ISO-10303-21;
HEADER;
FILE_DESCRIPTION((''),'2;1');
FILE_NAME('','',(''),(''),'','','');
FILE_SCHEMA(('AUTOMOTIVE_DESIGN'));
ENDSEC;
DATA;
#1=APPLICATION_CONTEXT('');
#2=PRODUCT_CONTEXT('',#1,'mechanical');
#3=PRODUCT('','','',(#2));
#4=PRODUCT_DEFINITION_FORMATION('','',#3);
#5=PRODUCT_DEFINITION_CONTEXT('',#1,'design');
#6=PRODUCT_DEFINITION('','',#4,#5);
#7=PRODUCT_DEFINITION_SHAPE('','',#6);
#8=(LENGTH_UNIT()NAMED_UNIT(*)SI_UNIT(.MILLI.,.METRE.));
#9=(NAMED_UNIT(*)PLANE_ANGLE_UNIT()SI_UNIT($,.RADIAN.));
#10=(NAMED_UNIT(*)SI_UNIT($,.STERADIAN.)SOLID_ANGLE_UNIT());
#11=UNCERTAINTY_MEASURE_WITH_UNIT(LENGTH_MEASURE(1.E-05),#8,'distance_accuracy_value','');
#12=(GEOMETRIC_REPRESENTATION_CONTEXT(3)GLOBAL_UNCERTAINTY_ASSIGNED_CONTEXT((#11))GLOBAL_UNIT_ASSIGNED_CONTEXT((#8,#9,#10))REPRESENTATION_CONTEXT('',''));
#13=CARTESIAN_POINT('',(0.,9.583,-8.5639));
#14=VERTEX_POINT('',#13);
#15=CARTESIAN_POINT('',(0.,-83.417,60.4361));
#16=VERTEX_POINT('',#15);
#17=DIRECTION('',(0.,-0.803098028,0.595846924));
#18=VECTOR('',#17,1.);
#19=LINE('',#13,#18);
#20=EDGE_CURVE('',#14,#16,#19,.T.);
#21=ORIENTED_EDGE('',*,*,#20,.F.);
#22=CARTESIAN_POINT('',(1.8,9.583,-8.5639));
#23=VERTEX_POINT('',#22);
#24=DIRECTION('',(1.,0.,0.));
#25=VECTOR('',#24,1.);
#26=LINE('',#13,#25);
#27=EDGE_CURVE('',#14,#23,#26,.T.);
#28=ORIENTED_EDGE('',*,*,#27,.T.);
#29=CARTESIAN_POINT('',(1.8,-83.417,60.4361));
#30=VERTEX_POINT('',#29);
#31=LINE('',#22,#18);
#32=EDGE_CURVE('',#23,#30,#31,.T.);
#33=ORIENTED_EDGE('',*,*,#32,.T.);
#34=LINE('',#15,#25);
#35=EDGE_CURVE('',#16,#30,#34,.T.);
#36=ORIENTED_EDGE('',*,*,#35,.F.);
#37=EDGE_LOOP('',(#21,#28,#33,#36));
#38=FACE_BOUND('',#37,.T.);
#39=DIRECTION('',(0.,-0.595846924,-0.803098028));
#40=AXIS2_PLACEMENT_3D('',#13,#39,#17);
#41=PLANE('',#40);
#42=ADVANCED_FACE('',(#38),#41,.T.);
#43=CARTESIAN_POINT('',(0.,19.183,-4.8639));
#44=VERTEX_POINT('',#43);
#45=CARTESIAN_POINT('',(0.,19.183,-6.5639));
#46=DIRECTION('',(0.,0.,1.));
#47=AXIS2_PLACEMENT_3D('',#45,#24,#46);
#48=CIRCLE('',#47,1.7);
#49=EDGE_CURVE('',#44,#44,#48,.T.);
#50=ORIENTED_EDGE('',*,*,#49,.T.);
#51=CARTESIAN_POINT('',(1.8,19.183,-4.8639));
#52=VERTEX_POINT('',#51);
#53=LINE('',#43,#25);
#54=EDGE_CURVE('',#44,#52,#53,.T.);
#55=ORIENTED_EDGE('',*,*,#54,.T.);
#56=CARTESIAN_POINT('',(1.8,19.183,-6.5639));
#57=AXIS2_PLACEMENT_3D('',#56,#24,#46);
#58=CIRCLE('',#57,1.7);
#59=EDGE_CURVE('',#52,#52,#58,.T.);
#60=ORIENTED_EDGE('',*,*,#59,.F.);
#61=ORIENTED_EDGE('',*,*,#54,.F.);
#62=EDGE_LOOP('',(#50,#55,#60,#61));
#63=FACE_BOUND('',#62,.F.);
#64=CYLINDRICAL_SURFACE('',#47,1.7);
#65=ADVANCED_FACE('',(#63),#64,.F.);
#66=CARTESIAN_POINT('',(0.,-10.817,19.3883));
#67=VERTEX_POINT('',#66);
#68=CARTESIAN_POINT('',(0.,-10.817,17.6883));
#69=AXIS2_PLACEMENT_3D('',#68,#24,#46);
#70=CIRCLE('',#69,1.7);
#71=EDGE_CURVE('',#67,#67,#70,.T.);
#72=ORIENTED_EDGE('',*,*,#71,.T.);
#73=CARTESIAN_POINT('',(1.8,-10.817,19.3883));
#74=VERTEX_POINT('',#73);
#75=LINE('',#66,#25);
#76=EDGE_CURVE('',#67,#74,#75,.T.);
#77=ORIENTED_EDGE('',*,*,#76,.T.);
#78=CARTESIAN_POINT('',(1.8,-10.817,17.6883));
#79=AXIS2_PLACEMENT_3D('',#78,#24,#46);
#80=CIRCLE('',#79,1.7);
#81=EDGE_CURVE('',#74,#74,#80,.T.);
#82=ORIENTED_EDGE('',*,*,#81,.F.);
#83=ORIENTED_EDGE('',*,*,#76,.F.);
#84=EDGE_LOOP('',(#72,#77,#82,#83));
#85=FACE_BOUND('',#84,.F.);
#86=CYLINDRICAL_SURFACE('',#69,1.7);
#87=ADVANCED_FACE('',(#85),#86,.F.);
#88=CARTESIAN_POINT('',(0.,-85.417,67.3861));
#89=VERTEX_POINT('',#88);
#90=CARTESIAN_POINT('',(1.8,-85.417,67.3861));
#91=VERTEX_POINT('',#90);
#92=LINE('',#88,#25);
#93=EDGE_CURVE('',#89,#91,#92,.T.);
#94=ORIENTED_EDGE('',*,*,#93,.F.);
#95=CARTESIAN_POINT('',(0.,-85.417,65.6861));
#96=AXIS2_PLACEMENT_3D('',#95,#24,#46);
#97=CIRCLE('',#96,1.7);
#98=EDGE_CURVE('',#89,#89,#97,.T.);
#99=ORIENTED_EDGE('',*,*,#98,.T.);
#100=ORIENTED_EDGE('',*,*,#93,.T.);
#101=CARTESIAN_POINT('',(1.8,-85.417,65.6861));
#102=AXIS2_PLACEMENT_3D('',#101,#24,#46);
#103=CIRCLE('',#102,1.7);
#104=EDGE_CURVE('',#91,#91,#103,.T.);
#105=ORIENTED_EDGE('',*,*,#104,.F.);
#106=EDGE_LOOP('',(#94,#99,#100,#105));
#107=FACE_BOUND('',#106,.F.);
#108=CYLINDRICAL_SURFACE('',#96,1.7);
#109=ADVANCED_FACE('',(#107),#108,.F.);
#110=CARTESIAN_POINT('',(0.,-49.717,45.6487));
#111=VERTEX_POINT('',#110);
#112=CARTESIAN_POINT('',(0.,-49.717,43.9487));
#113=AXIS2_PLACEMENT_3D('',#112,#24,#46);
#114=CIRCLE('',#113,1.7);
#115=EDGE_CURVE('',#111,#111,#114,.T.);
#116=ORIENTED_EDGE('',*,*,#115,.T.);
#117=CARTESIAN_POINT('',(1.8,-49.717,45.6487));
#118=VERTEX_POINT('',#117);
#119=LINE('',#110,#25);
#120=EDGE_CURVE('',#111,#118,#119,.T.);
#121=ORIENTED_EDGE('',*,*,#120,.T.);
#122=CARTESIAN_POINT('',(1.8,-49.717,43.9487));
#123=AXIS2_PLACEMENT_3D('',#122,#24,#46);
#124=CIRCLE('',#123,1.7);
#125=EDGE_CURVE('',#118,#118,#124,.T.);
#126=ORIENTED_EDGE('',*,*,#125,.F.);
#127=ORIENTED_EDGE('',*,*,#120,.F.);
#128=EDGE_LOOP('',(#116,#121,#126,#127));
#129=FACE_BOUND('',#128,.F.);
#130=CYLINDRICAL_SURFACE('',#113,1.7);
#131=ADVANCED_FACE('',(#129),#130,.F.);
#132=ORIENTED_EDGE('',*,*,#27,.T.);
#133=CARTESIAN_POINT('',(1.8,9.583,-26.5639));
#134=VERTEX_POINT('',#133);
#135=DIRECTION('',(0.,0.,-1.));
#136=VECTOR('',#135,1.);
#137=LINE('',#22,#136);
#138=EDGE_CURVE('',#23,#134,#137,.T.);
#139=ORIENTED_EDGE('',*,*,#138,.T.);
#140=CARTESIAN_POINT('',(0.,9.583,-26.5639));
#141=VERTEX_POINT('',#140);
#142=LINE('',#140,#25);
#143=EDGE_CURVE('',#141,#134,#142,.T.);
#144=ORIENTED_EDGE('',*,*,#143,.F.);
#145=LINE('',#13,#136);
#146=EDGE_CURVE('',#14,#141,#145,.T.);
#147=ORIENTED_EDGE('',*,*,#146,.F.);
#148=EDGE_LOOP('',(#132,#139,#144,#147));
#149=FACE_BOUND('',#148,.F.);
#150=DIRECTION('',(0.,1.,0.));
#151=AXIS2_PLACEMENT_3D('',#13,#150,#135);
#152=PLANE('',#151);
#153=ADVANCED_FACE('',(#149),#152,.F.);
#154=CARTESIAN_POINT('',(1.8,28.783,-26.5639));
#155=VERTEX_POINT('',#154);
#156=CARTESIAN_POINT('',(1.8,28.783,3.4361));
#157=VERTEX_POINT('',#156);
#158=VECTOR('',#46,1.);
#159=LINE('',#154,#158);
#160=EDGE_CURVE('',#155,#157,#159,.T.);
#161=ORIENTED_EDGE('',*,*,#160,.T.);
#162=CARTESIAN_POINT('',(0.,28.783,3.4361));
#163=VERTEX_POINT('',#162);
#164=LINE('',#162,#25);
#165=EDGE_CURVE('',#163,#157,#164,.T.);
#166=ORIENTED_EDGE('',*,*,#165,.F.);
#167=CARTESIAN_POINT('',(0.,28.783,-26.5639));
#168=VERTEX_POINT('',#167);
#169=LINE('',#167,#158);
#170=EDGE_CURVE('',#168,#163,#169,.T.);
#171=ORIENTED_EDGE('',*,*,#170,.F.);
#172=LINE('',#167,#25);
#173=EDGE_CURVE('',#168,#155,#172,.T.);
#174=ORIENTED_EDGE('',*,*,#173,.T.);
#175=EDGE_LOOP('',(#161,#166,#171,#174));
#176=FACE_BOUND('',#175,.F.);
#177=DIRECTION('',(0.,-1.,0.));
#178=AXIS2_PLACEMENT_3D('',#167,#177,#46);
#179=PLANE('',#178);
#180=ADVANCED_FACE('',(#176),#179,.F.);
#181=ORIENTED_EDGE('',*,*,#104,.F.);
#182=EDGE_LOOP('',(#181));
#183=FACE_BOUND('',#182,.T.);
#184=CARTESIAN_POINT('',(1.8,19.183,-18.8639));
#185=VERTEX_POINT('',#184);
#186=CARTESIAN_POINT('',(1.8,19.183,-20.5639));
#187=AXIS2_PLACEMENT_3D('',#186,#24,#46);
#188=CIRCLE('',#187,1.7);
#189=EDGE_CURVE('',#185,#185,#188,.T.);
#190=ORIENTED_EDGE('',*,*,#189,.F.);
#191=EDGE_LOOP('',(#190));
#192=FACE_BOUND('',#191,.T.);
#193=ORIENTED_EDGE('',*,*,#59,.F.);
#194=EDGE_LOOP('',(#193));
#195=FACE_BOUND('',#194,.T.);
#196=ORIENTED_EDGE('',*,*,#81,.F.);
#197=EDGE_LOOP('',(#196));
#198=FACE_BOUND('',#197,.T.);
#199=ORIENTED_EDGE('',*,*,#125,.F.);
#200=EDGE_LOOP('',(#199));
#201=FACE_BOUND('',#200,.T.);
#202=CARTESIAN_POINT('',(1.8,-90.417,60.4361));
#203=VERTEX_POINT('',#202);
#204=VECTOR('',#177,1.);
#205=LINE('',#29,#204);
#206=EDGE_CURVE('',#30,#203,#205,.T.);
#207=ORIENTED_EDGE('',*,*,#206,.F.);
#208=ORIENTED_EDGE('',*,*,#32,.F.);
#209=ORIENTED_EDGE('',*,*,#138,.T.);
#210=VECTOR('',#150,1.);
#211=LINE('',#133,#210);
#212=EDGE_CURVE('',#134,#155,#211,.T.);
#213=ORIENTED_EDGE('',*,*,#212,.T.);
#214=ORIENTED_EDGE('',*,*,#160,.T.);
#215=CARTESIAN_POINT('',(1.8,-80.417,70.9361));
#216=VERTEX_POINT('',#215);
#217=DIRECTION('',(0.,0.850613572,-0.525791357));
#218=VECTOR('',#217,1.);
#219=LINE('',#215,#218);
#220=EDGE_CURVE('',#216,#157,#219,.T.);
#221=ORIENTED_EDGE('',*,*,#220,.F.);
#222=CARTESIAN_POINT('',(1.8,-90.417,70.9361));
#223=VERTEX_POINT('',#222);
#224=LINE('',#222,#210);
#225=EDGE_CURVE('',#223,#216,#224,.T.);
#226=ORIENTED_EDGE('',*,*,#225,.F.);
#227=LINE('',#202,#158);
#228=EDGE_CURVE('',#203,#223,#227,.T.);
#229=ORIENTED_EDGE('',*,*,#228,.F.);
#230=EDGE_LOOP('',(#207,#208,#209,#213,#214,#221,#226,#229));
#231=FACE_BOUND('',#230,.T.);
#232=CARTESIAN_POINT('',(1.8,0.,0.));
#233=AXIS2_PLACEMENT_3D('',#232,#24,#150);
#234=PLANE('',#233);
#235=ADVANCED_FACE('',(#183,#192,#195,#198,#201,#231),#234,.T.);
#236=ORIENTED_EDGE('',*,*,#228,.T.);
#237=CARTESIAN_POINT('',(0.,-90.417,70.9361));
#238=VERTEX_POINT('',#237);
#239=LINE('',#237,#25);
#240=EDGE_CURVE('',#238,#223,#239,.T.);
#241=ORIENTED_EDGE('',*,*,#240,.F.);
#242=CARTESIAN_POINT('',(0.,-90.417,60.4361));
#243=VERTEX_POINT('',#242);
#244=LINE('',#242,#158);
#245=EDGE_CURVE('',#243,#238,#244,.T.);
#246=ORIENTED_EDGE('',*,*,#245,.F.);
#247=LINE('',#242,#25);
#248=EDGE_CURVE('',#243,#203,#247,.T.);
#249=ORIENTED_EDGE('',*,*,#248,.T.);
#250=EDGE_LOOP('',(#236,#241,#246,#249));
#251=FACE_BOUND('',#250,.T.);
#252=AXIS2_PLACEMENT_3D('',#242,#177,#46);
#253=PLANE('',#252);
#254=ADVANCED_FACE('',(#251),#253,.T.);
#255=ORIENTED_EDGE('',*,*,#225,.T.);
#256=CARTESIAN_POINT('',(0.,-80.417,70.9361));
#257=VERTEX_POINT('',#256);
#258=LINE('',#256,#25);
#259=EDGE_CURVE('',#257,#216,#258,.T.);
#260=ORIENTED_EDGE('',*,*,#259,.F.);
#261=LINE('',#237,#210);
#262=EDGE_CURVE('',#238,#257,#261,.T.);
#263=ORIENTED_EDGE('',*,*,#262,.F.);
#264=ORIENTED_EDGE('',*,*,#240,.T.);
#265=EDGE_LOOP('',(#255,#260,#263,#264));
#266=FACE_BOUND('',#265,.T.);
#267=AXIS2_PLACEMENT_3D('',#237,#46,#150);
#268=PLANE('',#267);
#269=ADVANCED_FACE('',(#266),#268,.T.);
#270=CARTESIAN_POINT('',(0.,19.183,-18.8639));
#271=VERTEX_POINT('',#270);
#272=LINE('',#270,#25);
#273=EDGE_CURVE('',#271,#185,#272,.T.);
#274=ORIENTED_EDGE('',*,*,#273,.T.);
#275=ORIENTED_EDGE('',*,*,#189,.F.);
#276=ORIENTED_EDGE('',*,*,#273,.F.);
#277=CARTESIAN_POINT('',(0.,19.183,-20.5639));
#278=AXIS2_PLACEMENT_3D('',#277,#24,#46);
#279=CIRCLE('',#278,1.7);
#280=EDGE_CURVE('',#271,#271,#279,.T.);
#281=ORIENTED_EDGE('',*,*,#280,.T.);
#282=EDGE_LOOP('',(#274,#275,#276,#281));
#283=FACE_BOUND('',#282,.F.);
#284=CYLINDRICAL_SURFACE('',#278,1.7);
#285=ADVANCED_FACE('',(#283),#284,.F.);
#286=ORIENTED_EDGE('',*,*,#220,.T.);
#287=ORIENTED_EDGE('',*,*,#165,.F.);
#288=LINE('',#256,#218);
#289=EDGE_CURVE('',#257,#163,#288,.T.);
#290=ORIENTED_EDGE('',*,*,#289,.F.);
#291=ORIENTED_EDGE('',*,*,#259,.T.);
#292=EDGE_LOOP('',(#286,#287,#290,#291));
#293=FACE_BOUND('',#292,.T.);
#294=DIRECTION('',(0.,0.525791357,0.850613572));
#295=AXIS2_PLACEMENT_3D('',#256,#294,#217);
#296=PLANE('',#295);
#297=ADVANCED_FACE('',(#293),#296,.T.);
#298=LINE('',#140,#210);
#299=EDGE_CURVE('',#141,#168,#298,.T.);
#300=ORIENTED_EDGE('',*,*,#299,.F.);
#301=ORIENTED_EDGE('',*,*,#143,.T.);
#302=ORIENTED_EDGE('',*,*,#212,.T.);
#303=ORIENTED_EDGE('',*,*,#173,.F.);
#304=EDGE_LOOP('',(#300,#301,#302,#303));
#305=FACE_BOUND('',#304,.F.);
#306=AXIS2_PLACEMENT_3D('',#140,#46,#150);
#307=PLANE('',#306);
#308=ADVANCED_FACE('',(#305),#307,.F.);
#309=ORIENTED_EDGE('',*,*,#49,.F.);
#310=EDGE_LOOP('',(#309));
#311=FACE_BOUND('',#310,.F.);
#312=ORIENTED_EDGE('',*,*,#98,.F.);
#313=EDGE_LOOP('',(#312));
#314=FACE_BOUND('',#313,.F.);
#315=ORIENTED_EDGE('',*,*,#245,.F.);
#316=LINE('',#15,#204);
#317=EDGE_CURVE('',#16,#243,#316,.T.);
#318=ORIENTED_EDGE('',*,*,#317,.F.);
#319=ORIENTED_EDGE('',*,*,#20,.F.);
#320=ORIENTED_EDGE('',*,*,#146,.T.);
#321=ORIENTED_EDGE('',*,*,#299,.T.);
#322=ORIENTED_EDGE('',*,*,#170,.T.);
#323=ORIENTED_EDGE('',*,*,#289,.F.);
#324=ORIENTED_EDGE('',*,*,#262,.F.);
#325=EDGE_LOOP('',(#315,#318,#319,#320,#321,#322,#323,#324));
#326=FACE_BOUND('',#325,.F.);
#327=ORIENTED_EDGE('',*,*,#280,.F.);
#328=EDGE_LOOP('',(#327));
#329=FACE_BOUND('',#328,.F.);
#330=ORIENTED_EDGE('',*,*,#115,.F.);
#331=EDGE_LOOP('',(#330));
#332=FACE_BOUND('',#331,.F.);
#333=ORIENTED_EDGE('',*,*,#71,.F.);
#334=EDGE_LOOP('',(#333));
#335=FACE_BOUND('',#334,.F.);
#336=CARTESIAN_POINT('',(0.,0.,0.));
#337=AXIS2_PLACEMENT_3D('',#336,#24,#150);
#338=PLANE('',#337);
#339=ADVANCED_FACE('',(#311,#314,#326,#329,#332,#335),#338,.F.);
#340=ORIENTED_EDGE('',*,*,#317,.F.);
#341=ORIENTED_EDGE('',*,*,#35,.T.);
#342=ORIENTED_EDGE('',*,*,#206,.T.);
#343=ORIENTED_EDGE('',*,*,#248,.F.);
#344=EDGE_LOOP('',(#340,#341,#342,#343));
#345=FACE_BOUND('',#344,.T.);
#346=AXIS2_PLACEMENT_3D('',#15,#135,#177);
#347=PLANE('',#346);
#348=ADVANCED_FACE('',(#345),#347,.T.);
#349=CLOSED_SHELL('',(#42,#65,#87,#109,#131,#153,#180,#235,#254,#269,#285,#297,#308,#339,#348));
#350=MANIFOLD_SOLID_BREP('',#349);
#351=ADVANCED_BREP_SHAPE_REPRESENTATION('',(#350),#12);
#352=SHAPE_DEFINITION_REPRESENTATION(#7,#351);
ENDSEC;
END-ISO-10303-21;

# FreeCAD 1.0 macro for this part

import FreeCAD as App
import Part
import Sketcher

doc = App.newDocument("Part")
body = doc.addObject("PartDesign::Body", "Body")

# Sketch on YZ plane
sketch1 = body.newObject("Sketcher::SketchObject", "Sketch")
sketch1.AttachmentSupport = (doc.getObject("YZ_Plane"), [""])
sketch1.MapMode = "FlatFace"
sketch1.addGeometry([
    Part.LineSegment(App.Vector(-83.417, 60.4361, 0), App.Vector(9.583, -8.5639, 0)),  # 0
    Part.LineSegment(App.Vector(9.583, -8.5639, 0), App.Vector(9.583, -26.5639, 0)),  # 1
    Part.LineSegment(App.Vector(9.583, -26.5639, 0), App.Vector(28.783, -26.5639, 0)),  # 2
    Part.LineSegment(App.Vector(28.783, -26.5639, 0), App.Vector(28.783, 3.4361, 0)),  # 3
    Part.LineSegment(App.Vector(28.783, 3.4361, 0), App.Vector(-80.417, 70.9361, 0)),  # 4
    Part.LineSegment(App.Vector(-80.417, 70.9361, 0), App.Vector(-90.417, 70.9361, 0)),  # 5
    Part.LineSegment(App.Vector(-90.417, 70.9361, 0), App.Vector(-90.417, 60.4361, 0)),  # 6
    Part.LineSegment(App.Vector(-90.417, 60.4361, 0), App.Vector(-83.417, 60.4361, 0)),  # 7
], False)
sketch1.addConstraint([
    Sketcher.Constraint("Coincident", 0, 2, 1, 1),
    Sketcher.Constraint("Coincident", 1, 2, 2, 1),
    Sketcher.Constraint("Coincident", 2, 2, 3, 1),
    Sketcher.Constraint("Coincident", 3, 2, 4, 1),
    Sketcher.Constraint("Coincident", 4, 2, 5, 1),
    Sketcher.Constraint("Coincident", 5, 2, 6, 1),
    Sketcher.Constraint("Coincident", 6, 2, 7, 1),
    Sketcher.Constraint("Coincident", 7, 2, 0, 1),
    Sketcher.Constraint("Vertical", 1),
    Sketcher.Constraint("Horizontal", 2),
    Sketcher.Constraint("Vertical", 3),
    Sketcher.Constraint("Horizontal", 5),
    Sketcher.Constraint("Vertical", 6),
    Sketcher.Constraint("Horizontal", 7),
    Sketcher.Constraint("DistanceX", 5, 2, 5, 1, 10.0),
    Sketcher.Constraint("DistanceX", 7, 1, 7, 2, 7.0),
    Sketcher.Constraint("DistanceY", 1, 2, 1, 1, 18.0),
    Sketcher.Constraint("DistanceY", 3, 1, 3, 2, 30.0),
    Sketcher.Constraint("DistanceX", 2, 1, 2, 2, 19.2),
    Sketcher.Constraint("DistanceY", 6, 2, 6, 1, 10.5),
    Sketcher.Constraint("DistanceY", 0, 2, 6, 2, 69.0),
    Sketcher.Constraint("DistanceX", 7, 2, 0, 2, 93.0),
    Sketcher.Constraint("DistanceX", -1, 1, 0, 2, 9.583),
    Sketcher.Constraint("DistanceY", 0, 2, -1, 1, 8.564),
])
pad1 = body.newObject("PartDesign::Pad", "Pad")
pad1.Profile = sketch1
pad1.Length = 1.8

# Sketch on YZ plane
sketch2 = body.newObject("Sketcher::SketchObject", "Sketch001")
sketch2.AttachmentSupport = (doc.getObject("YZ_Plane"), [""])
sketch2.MapMode = "FlatFace"
sketch2.addGeometry([
    Part.Circle(App.Vector(19.183, -20.5639, 0), App.Vector(0, 0, 1), 1.7),  # 0
    Part.Circle(App.Vector(19.183, -6.5639, 0), App.Vector(0, 0, 1), 1.7),  # 1
    Part.Circle(App.Vector(-85.417, 65.6861, 0), App.Vector(0, 0, 1), 1.7),  # 2
    Part.Circle(App.Vector(-49.717, 43.9487, 0), App.Vector(0, 0, 1), 1.7),  # 3
    Part.Circle(App.Vector(-10.817, 17.6883, 0), App.Vector(0, 0, 1), 1.7),  # 4
], False)
sketch2.addConstraint([
    Sketcher.Constraint("Equal", 0, 1),
    Sketcher.Constraint("Equal", 1, 2),
    Sketcher.Constraint("Equal", 2, 3),
    Sketcher.Constraint("Equal", 3, 4),
    Sketcher.Constraint("Vertical", 0, 3, 1, 3),
    Sketcher.Constraint("Diameter", 0, 3.4),
    Sketcher.Constraint("DistanceY", 0, 3, 1, 3, 14.0),
    Sketcher.Constraint("DistanceX", 4, 3, 1, 3, 30.0),
    Sketcher.Constraint("DistanceX", 2, 3, 1, 3, 104.6),
    Sketcher.Constraint("DistanceX", 2, 3, 3, 3, 35.7),
    Sketcher.Constraint("DistanceY", 1, 3, 2, 3, 72.25),
    Sketcher.Constraint("DistanceX", -1, 1, 0, 3, 19.183),
    Sketcher.Constraint("DistanceY", 0, 3, -1, 1, 20.564),
    Sketcher.Constraint("DistanceY", -1, 1, 3, 3, 43.9487),
    Sketcher.Constraint("DistanceY", -1, 1, 4, 3, 17.6883),
])
doc.recompute()
hole = body.newObject("PartDesign::Hole", "Hole")
hole.Profile = sketch2
hole.ThreadType = "None"
hole.Diameter = 3.4
hole.DepthType = "ThroughAll"
hole.Reversed = True

doc.recompute()
